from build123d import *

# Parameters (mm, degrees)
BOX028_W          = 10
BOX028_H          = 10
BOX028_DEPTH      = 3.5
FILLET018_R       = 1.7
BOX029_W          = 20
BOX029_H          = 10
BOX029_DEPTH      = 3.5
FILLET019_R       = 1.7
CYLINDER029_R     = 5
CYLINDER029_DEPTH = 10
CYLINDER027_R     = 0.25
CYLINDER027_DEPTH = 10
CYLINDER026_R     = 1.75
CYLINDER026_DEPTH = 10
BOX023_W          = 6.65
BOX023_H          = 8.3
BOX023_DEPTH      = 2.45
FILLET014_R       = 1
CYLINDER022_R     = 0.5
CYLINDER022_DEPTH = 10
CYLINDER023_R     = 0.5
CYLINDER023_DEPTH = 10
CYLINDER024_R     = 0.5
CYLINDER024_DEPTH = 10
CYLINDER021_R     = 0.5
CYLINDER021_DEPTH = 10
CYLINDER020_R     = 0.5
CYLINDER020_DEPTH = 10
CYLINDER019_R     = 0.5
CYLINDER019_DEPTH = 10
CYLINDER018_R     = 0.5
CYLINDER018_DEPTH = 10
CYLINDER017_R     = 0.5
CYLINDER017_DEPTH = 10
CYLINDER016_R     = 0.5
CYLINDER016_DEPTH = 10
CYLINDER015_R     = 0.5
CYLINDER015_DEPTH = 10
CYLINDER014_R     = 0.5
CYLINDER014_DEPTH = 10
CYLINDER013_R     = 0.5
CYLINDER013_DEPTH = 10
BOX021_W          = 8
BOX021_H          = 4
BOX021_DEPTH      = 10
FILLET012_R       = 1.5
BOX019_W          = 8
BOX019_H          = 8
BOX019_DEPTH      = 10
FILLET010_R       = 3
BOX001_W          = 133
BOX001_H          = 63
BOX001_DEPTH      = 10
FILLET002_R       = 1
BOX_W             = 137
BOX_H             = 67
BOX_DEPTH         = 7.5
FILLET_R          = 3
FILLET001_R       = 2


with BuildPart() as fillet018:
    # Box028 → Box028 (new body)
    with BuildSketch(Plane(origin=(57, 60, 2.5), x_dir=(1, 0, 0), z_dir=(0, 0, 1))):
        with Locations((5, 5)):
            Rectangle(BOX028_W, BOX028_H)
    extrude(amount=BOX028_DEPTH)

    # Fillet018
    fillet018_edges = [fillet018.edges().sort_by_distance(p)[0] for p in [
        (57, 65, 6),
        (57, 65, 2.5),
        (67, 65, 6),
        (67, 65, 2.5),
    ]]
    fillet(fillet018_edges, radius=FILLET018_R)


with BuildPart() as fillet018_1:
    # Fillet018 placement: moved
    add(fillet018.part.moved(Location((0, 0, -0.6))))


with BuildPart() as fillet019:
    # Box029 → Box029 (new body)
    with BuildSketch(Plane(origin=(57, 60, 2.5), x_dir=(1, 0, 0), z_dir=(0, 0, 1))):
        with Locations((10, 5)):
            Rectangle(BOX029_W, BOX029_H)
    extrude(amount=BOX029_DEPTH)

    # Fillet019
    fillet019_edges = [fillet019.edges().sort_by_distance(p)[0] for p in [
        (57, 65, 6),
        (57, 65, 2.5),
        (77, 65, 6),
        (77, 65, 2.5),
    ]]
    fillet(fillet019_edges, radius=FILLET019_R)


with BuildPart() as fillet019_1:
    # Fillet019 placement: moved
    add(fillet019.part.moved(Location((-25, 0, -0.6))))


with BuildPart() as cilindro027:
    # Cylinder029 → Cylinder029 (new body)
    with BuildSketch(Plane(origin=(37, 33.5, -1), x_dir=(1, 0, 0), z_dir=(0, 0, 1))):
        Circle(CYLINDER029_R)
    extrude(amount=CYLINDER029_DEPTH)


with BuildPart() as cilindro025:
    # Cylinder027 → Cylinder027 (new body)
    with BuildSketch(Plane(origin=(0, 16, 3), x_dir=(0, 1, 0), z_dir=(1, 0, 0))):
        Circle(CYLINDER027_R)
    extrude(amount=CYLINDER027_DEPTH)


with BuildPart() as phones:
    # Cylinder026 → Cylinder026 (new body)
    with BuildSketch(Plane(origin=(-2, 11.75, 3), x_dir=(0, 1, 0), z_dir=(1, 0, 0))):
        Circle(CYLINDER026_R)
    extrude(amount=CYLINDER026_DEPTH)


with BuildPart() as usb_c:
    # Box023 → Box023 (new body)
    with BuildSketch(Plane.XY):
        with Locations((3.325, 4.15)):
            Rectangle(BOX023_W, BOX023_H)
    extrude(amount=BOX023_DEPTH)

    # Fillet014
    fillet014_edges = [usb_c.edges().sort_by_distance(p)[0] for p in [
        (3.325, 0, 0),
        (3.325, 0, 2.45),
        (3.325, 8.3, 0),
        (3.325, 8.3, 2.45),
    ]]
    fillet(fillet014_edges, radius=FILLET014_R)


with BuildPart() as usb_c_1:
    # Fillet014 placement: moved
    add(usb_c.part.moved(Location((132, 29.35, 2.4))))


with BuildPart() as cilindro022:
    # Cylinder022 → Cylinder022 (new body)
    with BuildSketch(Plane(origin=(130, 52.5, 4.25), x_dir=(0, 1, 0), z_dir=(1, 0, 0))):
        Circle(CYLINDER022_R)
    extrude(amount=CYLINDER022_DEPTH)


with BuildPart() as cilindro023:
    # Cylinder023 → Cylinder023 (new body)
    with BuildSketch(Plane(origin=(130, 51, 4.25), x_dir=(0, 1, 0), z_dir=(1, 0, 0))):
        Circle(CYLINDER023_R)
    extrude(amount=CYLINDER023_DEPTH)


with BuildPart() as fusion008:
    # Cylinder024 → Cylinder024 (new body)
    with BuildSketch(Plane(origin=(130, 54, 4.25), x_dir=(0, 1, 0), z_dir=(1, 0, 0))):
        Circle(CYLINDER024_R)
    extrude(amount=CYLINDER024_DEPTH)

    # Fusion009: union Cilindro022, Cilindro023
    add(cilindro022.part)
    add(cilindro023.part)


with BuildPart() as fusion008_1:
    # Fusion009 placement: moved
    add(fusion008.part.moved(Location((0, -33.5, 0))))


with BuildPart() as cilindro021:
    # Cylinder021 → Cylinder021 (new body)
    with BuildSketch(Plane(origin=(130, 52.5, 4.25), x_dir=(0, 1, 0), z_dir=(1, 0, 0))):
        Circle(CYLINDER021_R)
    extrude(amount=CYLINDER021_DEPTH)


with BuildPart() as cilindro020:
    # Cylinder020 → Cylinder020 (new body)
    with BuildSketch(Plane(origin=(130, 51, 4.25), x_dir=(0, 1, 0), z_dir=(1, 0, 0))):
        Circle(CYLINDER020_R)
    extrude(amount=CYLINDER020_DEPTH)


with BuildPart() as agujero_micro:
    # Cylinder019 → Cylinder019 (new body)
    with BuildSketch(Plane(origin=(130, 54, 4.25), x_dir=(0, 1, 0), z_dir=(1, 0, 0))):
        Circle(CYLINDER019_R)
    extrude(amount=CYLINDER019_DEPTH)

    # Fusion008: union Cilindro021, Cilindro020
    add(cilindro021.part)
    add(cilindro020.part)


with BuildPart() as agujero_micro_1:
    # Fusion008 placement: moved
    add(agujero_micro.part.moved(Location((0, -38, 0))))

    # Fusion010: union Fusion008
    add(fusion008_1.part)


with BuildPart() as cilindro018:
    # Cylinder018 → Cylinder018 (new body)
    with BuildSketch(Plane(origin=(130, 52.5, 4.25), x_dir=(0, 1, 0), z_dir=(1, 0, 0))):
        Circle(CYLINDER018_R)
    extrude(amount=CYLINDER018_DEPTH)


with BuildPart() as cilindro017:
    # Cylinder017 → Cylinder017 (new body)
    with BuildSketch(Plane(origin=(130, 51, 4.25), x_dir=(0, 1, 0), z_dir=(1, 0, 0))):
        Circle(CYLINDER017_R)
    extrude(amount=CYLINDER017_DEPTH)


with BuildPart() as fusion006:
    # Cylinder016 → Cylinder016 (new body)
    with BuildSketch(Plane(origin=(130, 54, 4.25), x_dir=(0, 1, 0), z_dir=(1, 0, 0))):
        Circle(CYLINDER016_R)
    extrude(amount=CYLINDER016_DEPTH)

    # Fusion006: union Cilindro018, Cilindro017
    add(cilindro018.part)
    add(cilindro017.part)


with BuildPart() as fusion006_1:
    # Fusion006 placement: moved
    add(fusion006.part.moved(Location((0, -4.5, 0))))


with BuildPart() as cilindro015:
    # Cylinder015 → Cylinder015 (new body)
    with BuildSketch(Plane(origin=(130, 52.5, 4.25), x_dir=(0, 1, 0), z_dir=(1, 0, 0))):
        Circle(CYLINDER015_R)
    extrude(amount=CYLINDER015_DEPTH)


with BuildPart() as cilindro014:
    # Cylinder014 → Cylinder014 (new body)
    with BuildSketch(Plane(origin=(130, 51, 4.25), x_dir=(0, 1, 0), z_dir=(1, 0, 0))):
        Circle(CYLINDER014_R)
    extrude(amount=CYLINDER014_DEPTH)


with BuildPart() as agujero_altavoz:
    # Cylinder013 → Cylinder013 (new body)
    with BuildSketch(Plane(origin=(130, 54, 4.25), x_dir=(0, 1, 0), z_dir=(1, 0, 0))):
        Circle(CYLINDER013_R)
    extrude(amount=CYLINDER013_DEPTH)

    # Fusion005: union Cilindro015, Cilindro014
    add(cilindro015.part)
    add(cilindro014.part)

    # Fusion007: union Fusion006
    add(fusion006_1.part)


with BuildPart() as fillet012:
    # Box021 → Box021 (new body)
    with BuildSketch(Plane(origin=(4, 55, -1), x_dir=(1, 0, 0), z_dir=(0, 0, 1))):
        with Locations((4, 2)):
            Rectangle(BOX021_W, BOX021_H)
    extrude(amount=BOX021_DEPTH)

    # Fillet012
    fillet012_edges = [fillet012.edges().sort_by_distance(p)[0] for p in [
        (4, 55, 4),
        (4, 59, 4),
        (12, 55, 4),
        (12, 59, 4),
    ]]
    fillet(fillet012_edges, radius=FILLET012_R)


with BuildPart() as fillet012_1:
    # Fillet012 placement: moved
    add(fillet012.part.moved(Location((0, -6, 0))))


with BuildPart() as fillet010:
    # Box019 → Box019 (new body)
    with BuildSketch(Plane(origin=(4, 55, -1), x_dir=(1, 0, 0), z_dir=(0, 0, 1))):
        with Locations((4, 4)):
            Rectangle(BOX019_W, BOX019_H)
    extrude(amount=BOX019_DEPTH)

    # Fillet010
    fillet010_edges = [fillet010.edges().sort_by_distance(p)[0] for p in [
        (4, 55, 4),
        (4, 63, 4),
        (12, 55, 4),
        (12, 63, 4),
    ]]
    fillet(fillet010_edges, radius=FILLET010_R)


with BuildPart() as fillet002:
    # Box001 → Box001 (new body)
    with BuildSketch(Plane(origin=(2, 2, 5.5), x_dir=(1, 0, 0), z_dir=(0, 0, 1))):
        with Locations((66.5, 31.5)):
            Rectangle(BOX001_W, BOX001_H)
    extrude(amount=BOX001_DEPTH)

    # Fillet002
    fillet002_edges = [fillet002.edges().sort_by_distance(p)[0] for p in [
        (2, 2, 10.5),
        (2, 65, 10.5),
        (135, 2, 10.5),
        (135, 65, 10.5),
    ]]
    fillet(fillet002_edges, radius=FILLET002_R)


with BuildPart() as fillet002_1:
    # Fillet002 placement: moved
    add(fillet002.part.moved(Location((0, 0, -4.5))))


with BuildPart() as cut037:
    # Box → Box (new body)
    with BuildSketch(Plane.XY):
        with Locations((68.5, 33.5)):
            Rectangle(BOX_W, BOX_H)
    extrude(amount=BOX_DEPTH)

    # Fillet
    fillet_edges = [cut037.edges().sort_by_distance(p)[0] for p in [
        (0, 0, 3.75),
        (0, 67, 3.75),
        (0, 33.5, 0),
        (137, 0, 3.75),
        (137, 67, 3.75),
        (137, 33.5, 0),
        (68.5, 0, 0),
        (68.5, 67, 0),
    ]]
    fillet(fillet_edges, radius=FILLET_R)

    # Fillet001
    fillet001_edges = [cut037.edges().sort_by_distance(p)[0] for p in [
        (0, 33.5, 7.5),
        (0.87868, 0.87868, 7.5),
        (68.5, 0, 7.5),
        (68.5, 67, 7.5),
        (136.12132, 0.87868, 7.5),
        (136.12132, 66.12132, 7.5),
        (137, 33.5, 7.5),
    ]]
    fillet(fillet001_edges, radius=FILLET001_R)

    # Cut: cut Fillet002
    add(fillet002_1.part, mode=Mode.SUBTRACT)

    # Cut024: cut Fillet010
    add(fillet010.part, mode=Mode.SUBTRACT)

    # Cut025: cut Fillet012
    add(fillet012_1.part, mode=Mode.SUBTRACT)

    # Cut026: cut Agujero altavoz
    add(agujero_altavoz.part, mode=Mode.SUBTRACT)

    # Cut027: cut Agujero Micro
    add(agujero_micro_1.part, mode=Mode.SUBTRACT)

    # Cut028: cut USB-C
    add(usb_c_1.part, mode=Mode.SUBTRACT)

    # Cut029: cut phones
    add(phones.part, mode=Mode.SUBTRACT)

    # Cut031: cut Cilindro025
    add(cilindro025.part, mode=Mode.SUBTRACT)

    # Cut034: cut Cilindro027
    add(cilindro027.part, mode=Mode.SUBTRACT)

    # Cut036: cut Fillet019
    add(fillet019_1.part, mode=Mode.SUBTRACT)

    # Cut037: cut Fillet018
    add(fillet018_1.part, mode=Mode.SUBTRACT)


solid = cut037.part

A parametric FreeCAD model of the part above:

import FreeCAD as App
import Part
import Sketcher
from FreeCAD import Vector
Q = App.Units.Quantity


def edges_at(feature, points):
    """Names of the edges that pass closest to the given points."""
    edges = feature.Shape.Edges
    near = lambda p: min(range(len(edges)), key=lambda i: edges[i].distToShape(Part.Vertex(*p))[0])
    return sorted({f"Edge{near(p) + 1}" for p in points})


def add_polygon(sketch, points):
    """Adds a closed chain of lines whose ends are joined by coincident constraints."""
    first, n = sketch.GeometryCount, len(points)
    for a, b in zip(points, points[1:] + points[:1]):
        sketch.addGeometry(Part.LineSegment(App.Vector(*a, 0), App.Vector(*b, 0)), False)
    for i in range(n):
        sketch.addConstraint(Sketcher.Constraint("Coincident", first + i, 2, first + (i + 1) % n, 1))

doc = App.newDocument("Part")
body = doc.addObject("PartDesign::Body", "Body")

sketch1 = body.newObject("Sketcher::SketchObject", "Sketch")
sketch1.AttachmentSupport = (doc.getObject("XY_Plane"), [""])
sketch1.MapMode = "FlatFace"
sketch1.AttachmentOffset = App.Placement(Vector(0, 0, 2.5), App.Rotation())
add_polygon(sketch1, [(57, 70), (57, 60), (67, 60), (67, 70)])
sketch1.addConstraint([
    Sketcher.Constraint("Vertical", 0),
    Sketcher.Constraint("Horizontal", 1),
    Sketcher.Constraint("Vertical", 2),
    Sketcher.Constraint("Horizontal", 3),
    Sketcher.Constraint("Equal", 3, 0),
    Sketcher.Constraint("DistanceX", 1, 1, 1, 2, Q("10 mm")),
    Sketcher.Constraint("DistanceX", -1, 1, 0, 2, Q("57 mm")),
    Sketcher.Constraint("DistanceY", -1, 1, 0, 2, Q("60 mm")),
])
pad1 = body.newObject("PartDesign::Pad", "Pad")
pad1.Profile = sketch1
pad1.Length = 3.5
doc.recompute()

fillet = body.newObject("PartDesign::Fillet", "Fillet")
fillet.Base = (pad1, edges_at(pad1, [
    (57, 65, 6),
    (57, 65, 2.5),
    (67, 65, 6),
    (67, 65, 2.5),
]))
fillet.Radius = 1.7
body2 = doc.addObject("PartDesign::Body", "Body001")
doc.recompute()

body.Placement = App.Placement(Vector(0, 0, -0.6), App.Rotation(Vector(0, 0, 1), 0))
boolean = body2.newObject("PartDesign::Boolean", "Boolean")
boolean.Type = "Fuse"
boolean.addObjects([body])
body3 = doc.addObject("PartDesign::Body", "Body002")

sketch2 = body3.newObject("Sketcher::SketchObject", "Sketch001")
sketch2.AttachmentSupport = (doc.getObject("XY_Plane002"), [""])
sketch2.MapMode = "FlatFace"
sketch2.AttachmentOffset = App.Placement(Vector(0, 0, 2.5), App.Rotation())
add_polygon(sketch2, [(57, 70), (57, 60), (77, 60), (77, 70)])
sketch2.addConstraint([
    Sketcher.Constraint("Vertical", 0),
    Sketcher.Constraint("Horizontal", 1),
    Sketcher.Constraint("Vertical", 2),
    Sketcher.Constraint("Horizontal", 3),
    Sketcher.Constraint("DistanceX", 1, 1, 1, 2, Q("20 mm")),
    Sketcher.Constraint("DistanceY", 0, 2, 0, 1, Q("10 mm")),
    Sketcher.Constraint("DistanceX", -1, 1, 0, 2, Q("57 mm")),
    Sketcher.Constraint("DistanceY", -1, 1, 0, 2, Q("60 mm")),
])
pad2 = body3.newObject("PartDesign::Pad", "Pad001")
pad2.Profile = sketch2
pad2.Length = 3.5
doc.recompute()

fillet2 = body3.newObject("PartDesign::Fillet", "Fillet001")
fillet2.Base = (pad2, edges_at(pad2, [
    (57, 65, 6),
    (57, 65, 2.5),
    (77, 65, 6),
    (77, 65, 2.5),
]))
fillet2.Radius = 1.7
body4 = doc.addObject("PartDesign::Body", "Body003")
doc.recompute()

body3.Placement = App.Placement(Vector(-25, 0, -0.6), App.Rotation(Vector(0, 0, 1), 0))
boolean2 = body4.newObject("PartDesign::Boolean", "Boolean001")
boolean2.Type = "Fuse"
boolean2.addObjects([body3])
body5 = doc.addObject("PartDesign::Body", "Body004")

sketch3 = body5.newObject("Sketcher::SketchObject", "Sketch002")
sketch3.AttachmentSupport = (doc.getObject("XY_Plane004"), [""])
sketch3.MapMode = "FlatFace"
sketch3.AttachmentOffset = App.Placement(Vector(0, 0, -1), App.Rotation())
sketch3.addGeometry(Part.Circle(Vector(37, 33.5, 0), Vector(0, 0, 1), 5), False)
sketch3.addConstraint([
    Sketcher.Constraint("Diameter", 0, Q("10 mm")),
    Sketcher.Constraint("DistanceX", -1, 1, 0, 3, Q("37 mm")),
    Sketcher.Constraint("DistanceY", -1, 1, 0, 3, Q("33.5 mm")),
])
pad3 = body5.newObject("PartDesign::Pad", "Pad002")
pad3.Profile = sketch3
pad3.Length = 10
body6 = doc.addObject("PartDesign::Body", "Body005")

sketch4 = body6.newObject("Sketcher::SketchObject", "Sketch003")
sketch4.AttachmentSupport = (doc.getObject("YZ_Plane005"), [""])
sketch4.MapMode = "FlatFace"
sketch4.addGeometry(Part.Circle(Vector(16, 3, 0), Vector(0, 0, 1), 0.25), False)
sketch4.addConstraint([
    Sketcher.Constraint("Diameter", 0, Q("0.5 mm")),
    Sketcher.Constraint("DistanceX", -1, 1, 0, 3, Q("16 mm")),
    Sketcher.Constraint("DistanceY", -1, 1, 0, 3, Q("3 mm")),
])
pad4 = body6.newObject("PartDesign::Pad", "Pad003")
pad4.Profile = sketch4
pad4.Length = 10
body7 = doc.addObject("PartDesign::Body", "Body006")

sketch5 = body7.newObject("Sketcher::SketchObject", "Sketch004")
sketch5.AttachmentSupport = (doc.getObject("YZ_Plane006"), [""])
sketch5.MapMode = "FlatFace"
sketch5.AttachmentOffset = App.Placement(Vector(0, 0, -2), App.Rotation())
sketch5.addGeometry(Part.Circle(Vector(11.75, 3, 0), Vector(0, 0, 1), 1.75), False)
sketch5.addConstraint([
    Sketcher.Constraint("Diameter", 0, Q("3.5 mm")),
    Sketcher.Constraint("DistanceY", -1, 1, 0, 3, Q("3 mm")),
    Sketcher.Constraint("DistanceX", -1, 1, 0, 3, Q("11.75 mm")),
])
pad5 = body7.newObject("PartDesign::Pad", "Pad004")
pad5.Profile = sketch5
pad5.Length = 10
body8 = doc.addObject("PartDesign::Body", "Body007")

sketch6 = body8.newObject("Sketcher::SketchObject", "Sketch005")
sketch6.AttachmentSupport = (doc.getObject("XY_Plane007"), [""])
sketch6.MapMode = "FlatFace"
add_polygon(sketch6, [(0, 8.3), (0, 0), (6.65, 0), (6.65, 8.3)])
sketch6.addConstraint([
    Sketcher.Constraint("Vertical", 0),
    Sketcher.Constraint("Horizontal", 1),
    Sketcher.Constraint("Vertical", 2),
    Sketcher.Constraint("Horizontal", 3),
    Sketcher.Constraint("Coincident", 0, 2, -1, 1),
    Sketcher.Constraint("DistanceY", 0, 2, 0, 1, Q("8.3 mm")),
    Sketcher.Constraint("DistanceX", 1, 1, 1, 2, Q("6.65 mm")),
])
pad6 = body8.newObject("PartDesign::Pad", "Pad005")
pad6.Profile = sketch6
pad6.Length = 2.45
doc.recompute()

fillet3 = body8.newObject("PartDesign::Fillet", "Fillet002")
fillet3.Base = (pad6, edges_at(pad6, [
    (3.325, 0, 0),
    (3.325, 0, 2.45),
    (3.325, 8.3, 0),
    (3.325, 8.3, 2.45),
]))
fillet3.Radius = 1
body9 = doc.addObject("PartDesign::Body", "Body008")
doc.recompute()

body8.Placement = App.Placement(Vector(132, 29.35, 2.4), App.Rotation(Vector(0, 0, 1), 0))
boolean3 = body9.newObject("PartDesign::Boolean", "Boolean002")
boolean3.Type = "Fuse"
boolean3.addObjects([body8])
body10 = doc.addObject("PartDesign::Body", "Body009")

sketch7 = body10.newObject("Sketcher::SketchObject", "Sketch006")
sketch7.AttachmentSupport = (doc.getObject("YZ_Plane009"), [""])
sketch7.MapMode = "FlatFace"
sketch7.AttachmentOffset = App.Placement(Vector(0, 0, 130), App.Rotation())
sketch7.addGeometry(Part.Circle(Vector(52.5, 4.25, 0), Vector(0, 0, 1), 0.5), False)
sketch7.addConstraint([
    Sketcher.Constraint("Diameter", 0, Q("1 mm")),
    Sketcher.Constraint("DistanceX", -1, 1, 0, 3, Q("52.5 mm")),
    Sketcher.Constraint("DistanceY", -1, 1, 0, 3, Q("4.25 mm")),
])
pad7 = body10.newObject("PartDesign::Pad", "Pad006")
pad7.Profile = sketch7
pad7.Length = 10
body11 = doc.addObject("PartDesign::Body", "Body010")

sketch8 = body11.newObject("Sketcher::SketchObject", "Sketch007")
sketch8.AttachmentSupport = (doc.getObject("YZ_Plane010"), [""])
sketch8.MapMode = "FlatFace"
sketch8.AttachmentOffset = App.Placement(Vector(0, 0, 130), App.Rotation())
sketch8.addGeometry(Part.Circle(Vector(51, 4.25, 0), Vector(0, 0, 1), 0.5), False)
sketch8.addConstraint([
    Sketcher.Constraint("Diameter", 0, Q("1 mm")),
    Sketcher.Constraint("DistanceX", -1, 1, 0, 3, Q("51 mm")),
    Sketcher.Constraint("DistanceY", -1, 1, 0, 3, Q("4.25 mm")),
])
pad8 = body11.newObject("PartDesign::Pad", "Pad007")
pad8.Profile = sketch8
pad8.Length = 10
body12 = doc.addObject("PartDesign::Body", "Body011")
body12.AllowCompound = True

sketch9 = body12.newObject("Sketcher::SketchObject", "Sketch008")
sketch9.AttachmentSupport = (doc.getObject("YZ_Plane011"), [""])
sketch9.MapMode = "FlatFace"
sketch9.AttachmentOffset = App.Placement(Vector(0, 0, 130), App.Rotation())
sketch9.addGeometry(Part.Circle(Vector(54, 4.25, 0), Vector(0, 0, 1), 0.5), False)
sketch9.addConstraint([
    Sketcher.Constraint("Diameter", 0, Q("1 mm")),
    Sketcher.Constraint("DistanceX", -1, 1, 0, 3, Q("54 mm")),
    Sketcher.Constraint("DistanceY", -1, 1, 0, 3, Q("4.25 mm")),
])
pad9 = body12.newObject("PartDesign::Pad", "Pad008")
pad9.Profile = sketch9
pad9.Length = 10
doc.recompute()

boolean4 = body12.newObject("PartDesign::Boolean", "Boolean003")
boolean4.Type = "Fuse"
boolean4.addObjects([body10])
doc.recompute()

boolean5 = body12.newObject("PartDesign::Boolean", "Boolean004")
boolean5.Type = "Fuse"
boolean5.addObjects([body11])
body13 = doc.addObject("PartDesign::Body", "Body012")
body13.AllowCompound = True
doc.recompute()

body12.Placement = App.Placement(Vector(0, -33.5, 0), App.Rotation(Vector(0, 0, 1), 0))
boolean6 = body13.newObject("PartDesign::Boolean", "Boolean005")
boolean6.Type = "Fuse"
boolean6.addObjects([body12])
body14 = doc.addObject("PartDesign::Body", "Body013")

sketch10 = body14.newObject("Sketcher::SketchObject", "Sketch009")
sketch10.AttachmentSupport = (doc.getObject("YZ_Plane013"), [""])
sketch10.MapMode = "FlatFace"
sketch10.AttachmentOffset = App.Placement(Vector(0, 0, 130), App.Rotation())
sketch10.addGeometry(Part.Circle(Vector(52.5, 4.25, 0), Vector(0, 0, 1), 0.5), False)
sketch10.addConstraint([
    Sketcher.Constraint("Diameter", 0, Q("1 mm")),
    Sketcher.Constraint("DistanceX", -1, 1, 0, 3, Q("52.5 mm")),
    Sketcher.Constraint("DistanceY", -1, 1, 0, 3, Q("4.25 mm")),
])
pad10 = body14.newObject("PartDesign::Pad", "Pad009")
pad10.Profile = sketch10
pad10.Length = 10
body15 = doc.addObject("PartDesign::Body", "Body014")

sketch11 = body15.newObject("Sketcher::SketchObject", "Sketch010")
sketch11.AttachmentSupport = (doc.getObject("YZ_Plane014"), [""])
sketch11.MapMode = "FlatFace"
sketch11.AttachmentOffset = App.Placement(Vector(0, 0, 130), App.Rotation())
sketch11.addGeometry(Part.Circle(Vector(51, 4.25, 0), Vector(0, 0, 1), 0.5), False)
sketch11.addConstraint([
    Sketcher.Constraint("Diameter", 0, Q("1 mm")),
    Sketcher.Constraint("DistanceX", -1, 1, 0, 3, Q("51 mm")),
    Sketcher.Constraint("DistanceY", -1, 1, 0, 3, Q("4.25 mm")),
])
pad11 = body15.newObject("PartDesign::Pad", "Pad010")
pad11.Profile = sketch11
pad11.Length = 10
body16 = doc.addObject("PartDesign::Body", "Body015")
body16.AllowCompound = True

sketch12 = body16.newObject("Sketcher::SketchObject", "Sketch011")
sketch12.AttachmentSupport = (doc.getObject("YZ_Plane015"), [""])
sketch12.MapMode = "FlatFace"
sketch12.AttachmentOffset = App.Placement(Vector(0, 0, 130), App.Rotation())
sketch12.addGeometry(Part.Circle(Vector(54, 4.25, 0), Vector(0, 0, 1), 0.5), False)
sketch12.addConstraint([
    Sketcher.Constraint("Diameter", 0, Q("1 mm")),
    Sketcher.Constraint("DistanceX", -1, 1, 0, 3, Q("54 mm")),
    Sketcher.Constraint("DistanceY", -1, 1, 0, 3, Q("4.25 mm")),
])
pad12 = body16.newObject("PartDesign::Pad", "Pad011")
pad12.Profile = sketch12
pad12.Length = 10
doc.recompute()

boolean7 = body16.newObject("PartDesign::Boolean", "Boolean006")
boolean7.Type = "Fuse"
boolean7.addObjects([body14])
doc.recompute()

boolean8 = body16.newObject("PartDesign::Boolean", "Boolean007")
boolean8.Type = "Fuse"
boolean8.addObjects([body15])
body17 = doc.addObject("PartDesign::Body", "Body016")
body17.AllowCompound = True
doc.recompute()

body16.Placement = App.Placement(Vector(0, -38, 0), App.Rotation(Vector(0, 0, 1), 0))
boolean9 = body17.newObject("PartDesign::Boolean", "Boolean008")
boolean9.Type = "Fuse"
boolean9.addObjects([body16])
doc.recompute()

boolean10 = body17.newObject("PartDesign::Boolean", "Boolean009")
boolean10.Type = "Fuse"
boolean10.addObjects([body13])
body18 = doc.addObject("PartDesign::Body", "Body017")

sketch13 = body18.newObject("Sketcher::SketchObject", "Sketch012")
sketch13.AttachmentSupport = (doc.getObject("YZ_Plane017"), [""])
sketch13.MapMode = "FlatFace"
sketch13.AttachmentOffset = App.Placement(Vector(0, 0, 130), App.Rotation())
sketch13.addGeometry(Part.Circle(Vector(52.5, 4.25, 0), Vector(0, 0, 1), 0.5), False)
sketch13.addConstraint([
    Sketcher.Constraint("Diameter", 0, Q("1 mm")),
    Sketcher.Constraint("DistanceX", -1, 1, 0, 3, Q("52.5 mm")),
    Sketcher.Constraint("DistanceY", -1, 1, 0, 3, Q("4.25 mm")),
])
pad13 = body18.newObject("PartDesign::Pad", "Pad012")
pad13.Profile = sketch13
pad13.Length = 10
body19 = doc.addObject("PartDesign::Body", "Body018")

sketch14 = body19.newObject("Sketcher::SketchObject", "Sketch013")
sketch14.AttachmentSupport = (doc.getObject("YZ_Plane018"), [""])
sketch14.MapMode = "FlatFace"
sketch14.AttachmentOffset = App.Placement(Vector(0, 0, 130), App.Rotation())
sketch14.addGeometry(Part.Circle(Vector(51, 4.25, 0), Vector(0, 0, 1), 0.5), False)
sketch14.addConstraint([
    Sketcher.Constraint("Diameter", 0, Q("1 mm")),
    Sketcher.Constraint("DistanceX", -1, 1, 0, 3, Q("51 mm")),
    Sketcher.Constraint("DistanceY", -1, 1, 0, 3, Q("4.25 mm")),
])
pad14 = body19.newObject("PartDesign::Pad", "Pad013")
pad14.Profile = sketch14
pad14.Length = 10
body20 = doc.addObject("PartDesign::Body", "Body019")
body20.AllowCompound = True

sketch15 = body20.newObject("Sketcher::SketchObject", "Sketch014")
sketch15.AttachmentSupport = (doc.getObject("YZ_Plane019"), [""])
sketch15.MapMode = "FlatFace"
sketch15.AttachmentOffset = App.Placement(Vector(0, 0, 130), App.Rotation())
sketch15.addGeometry(Part.Circle(Vector(54, 4.25, 0), Vector(0, 0, 1), 0.5), False)
sketch15.addConstraint([
    Sketcher.Constraint("Diameter", 0, Q("1 mm")),
    Sketcher.Constraint("DistanceX", -1, 1, 0, 3, Q("54 mm")),
    Sketcher.Constraint("DistanceY", -1, 1, 0, 3, Q("4.25 mm")),
])
pad15 = body20.newObject("PartDesign::Pad", "Pad014")
pad15.Profile = sketch15
pad15.Length = 10
doc.recompute()

boolean11 = body20.newObject("PartDesign::Boolean", "Boolean010")
boolean11.Type = "Fuse"
boolean11.addObjects([body18])
doc.recompute()

boolean12 = body20.newObject("PartDesign::Boolean", "Boolean011")
boolean12.Type = "Fuse"
boolean12.addObjects([body19])
body21 = doc.addObject("PartDesign::Body", "Body020")
body21.AllowCompound = True
doc.recompute()

body20.Placement = App.Placement(Vector(0, -4.5, 0), App.Rotation(Vector(0, 0, 1), 0))
boolean13 = body21.newObject("PartDesign::Boolean", "Boolean012")
boolean13.Type = "Fuse"
boolean13.addObjects([body20])
body22 = doc.addObject("PartDesign::Body", "Body021")

sketch16 = body22.newObject("Sketcher::SketchObject", "Sketch015")
sketch16.AttachmentSupport = (doc.getObject("YZ_Plane021"), [""])
sketch16.MapMode = "FlatFace"
sketch16.AttachmentOffset = App.Placement(Vector(0, 0, 130), App.Rotation())
sketch16.addGeometry(Part.Circle(Vector(52.5, 4.25, 0), Vector(0, 0, 1), 0.5), False)
sketch16.addConstraint([
    Sketcher.Constraint("Diameter", 0, Q("1 mm")),
    Sketcher.Constraint("DistanceX", -1, 1, 0, 3, Q("52.5 mm")),
    Sketcher.Constraint("DistanceY", -1, 1, 0, 3, Q("4.25 mm")),
])
pad16 = body22.newObject("PartDesign::Pad", "Pad015")
pad16.Profile = sketch16
pad16.Length = 10
body23 = doc.addObject("PartDesign::Body", "Body022")

sketch17 = body23.newObject("Sketcher::SketchObject", "Sketch016")
sketch17.AttachmentSupport = (doc.getObject("YZ_Plane022"), [""])
sketch17.MapMode = "FlatFace"
sketch17.AttachmentOffset = App.Placement(Vector(0, 0, 130), App.Rotation())
sketch17.addGeometry(Part.Circle(Vector(51, 4.25, 0), Vector(0, 0, 1), 0.5), False)
sketch17.addConstraint([
    Sketcher.Constraint("Diameter", 0, Q("1 mm")),
    Sketcher.Constraint("DistanceX", -1, 1, 0, 3, Q("51 mm")),
    Sketcher.Constraint("DistanceY", -1, 1, 0, 3, Q("4.25 mm")),
])
pad17 = body23.newObject("PartDesign::Pad", "Pad016")
pad17.Profile = sketch17
pad17.Length = 10
body24 = doc.addObject("PartDesign::Body", "Body023")
body24.AllowCompound = True

sketch18 = body24.newObject("Sketcher::SketchObject", "Sketch017")
sketch18.AttachmentSupport = (doc.getObject("YZ_Plane023"), [""])
sketch18.MapMode = "FlatFace"
sketch18.AttachmentOffset = App.Placement(Vector(0, 0, 130), App.Rotation())
sketch18.addGeometry(Part.Circle(Vector(54, 4.25, 0), Vector(0, 0, 1), 0.5), False)
sketch18.addConstraint([
    Sketcher.Constraint("Diameter", 0, Q("1 mm")),
    Sketcher.Constraint("DistanceX", -1, 1, 0, 3, Q("54 mm")),
    Sketcher.Constraint("DistanceY", -1, 1, 0, 3, Q("4.25 mm")),
])
pad18 = body24.newObject("PartDesign::Pad", "Pad017")
pad18.Profile = sketch18
pad18.Length = 10
doc.recompute()

boolean14 = body24.newObject("PartDesign::Boolean", "Boolean013")
boolean14.Type = "Fuse"
boolean14.addObjects([body22])
doc.recompute()

boolean15 = body24.newObject("PartDesign::Boolean", "Boolean014")
boolean15.Type = "Fuse"
boolean15.addObjects([body23])
doc.recompute()

boolean16 = body24.newObject("PartDesign::Boolean", "Boolean015")
boolean16.Type = "Fuse"
boolean16.addObjects([body21])
body25 = doc.addObject("PartDesign::Body", "Body024")

sketch19 = body25.newObject("Sketcher::SketchObject", "Sketch018")
sketch19.AttachmentSupport = (doc.getObject("XY_Plane024"), [""])
sketch19.MapMode = "FlatFace"
sketch19.AttachmentOffset = App.Placement(Vector(0, 0, -1), App.Rotation())
add_polygon(sketch19, [(4, 59), (4, 55), (12, 55), (12, 59)])
sketch19.addConstraint([
    Sketcher.Constraint("Vertical", 0),
    Sketcher.Constraint("Horizontal", 1),
    Sketcher.Constraint("Vertical", 2),
    Sketcher.Constraint("Horizontal", 3),
    Sketcher.Constraint("DistanceX", 1, 1, 1, 2, Q("8 mm")),
    Sketcher.Constraint("DistanceY", 0, 2, 0, 1, Q("4 mm")),
    Sketcher.Constraint("DistanceX", -1, 1, 0, 2, Q("4 mm")),
    Sketcher.Constraint("DistanceY", -1, 1, 0, 2, Q("55 mm")),
])
pad19 = body25.newObject("PartDesign::Pad", "Pad018")
pad19.Profile = sketch19
pad19.Length = 10
doc.recompute()

fillet4 = body25.newObject("PartDesign::Fillet", "Fillet003")
fillet4.Base = (pad19, edges_at(pad19, [
    (4, 55, 4),
    (4, 59, 4),
    (12, 55, 4),
    (12, 59, 4),
]))
fillet4.Radius = 1.5
body26 = doc.addObject("PartDesign::Body", "Body025")
doc.recompute()

body25.Placement = App.Placement(Vector(0, -6, 0), App.Rotation(Vector(0, 0, 1), 0))
boolean17 = body26.newObject("PartDesign::Boolean", "Boolean016")
boolean17.Type = "Fuse"
boolean17.addObjects([body25])
body27 = doc.addObject("PartDesign::Body", "Body026")

sketch20 = body27.newObject("Sketcher::SketchObject", "Sketch019")
sketch20.AttachmentSupport = (doc.getObject("XY_Plane026"), [""])
sketch20.MapMode = "FlatFace"
sketch20.AttachmentOffset = App.Placement(Vector(0, 0, -1), App.Rotation())
add_polygon(sketch20, [(4, 63), (4, 55), (12, 55), (12, 63)])
sketch20.addConstraint([
    Sketcher.Constraint("Vertical", 0),
    Sketcher.Constraint("Horizontal", 1),
    Sketcher.Constraint("Vertical", 2),
    Sketcher.Constraint("Horizontal", 3),
    Sketcher.Constraint("Equal", 3, 0),
    Sketcher.Constraint("DistanceX", 1, 1, 1, 2, Q("8 mm")),
    Sketcher.Constraint("DistanceX", -1, 1, 0, 2, Q("4 mm")),
    Sketcher.Constraint("DistanceY", -1, 1, 0, 2, Q("55 mm")),
])
pad20 = body27.newObject("PartDesign::Pad", "Pad019")
pad20.Profile = sketch20
pad20.Length = 10
doc.recompute()

fillet5 = body27.newObject("PartDesign::Fillet", "Fillet004")
fillet5.Base = (pad20, edges_at(pad20, [
    (4, 55, 4),
    (4, 63, 4),
    (12, 55, 4),
    (12, 63, 4),
]))
fillet5.Radius = 3
body28 = doc.addObject("PartDesign::Body", "Body027")

sketch21 = body28.newObject("Sketcher::SketchObject", "Sketch020")
sketch21.AttachmentSupport = (doc.getObject("XY_Plane027"), [""])
sketch21.MapMode = "FlatFace"
sketch21.AttachmentOffset = App.Placement(Vector(0, 0, 5.5), App.Rotation())
add_polygon(sketch21, [(2, 65), (2, 2), (135, 2), (135, 65)])
sketch21.addConstraint([
    Sketcher.Constraint("Vertical", 0),
    Sketcher.Constraint("Horizontal", 1),
    Sketcher.Constraint("Vertical", 2),
    Sketcher.Constraint("Horizontal", 3),
    Sketcher.Constraint("DistanceX", 1, 1, 1, 2, Q("133 mm")),
    Sketcher.Constraint("DistanceY", 0, 2, 0, 1, Q("63 mm")),
    Sketcher.Constraint("DistanceX", -1, 1, 0, 2, Q("2 mm")),
    Sketcher.Constraint("DistanceY", -1, 1, 0, 2, Q("2 mm")),
])
pad21 = body28.newObject("PartDesign::Pad", "Pad020")
pad21.Profile = sketch21
pad21.Length = 10
doc.recompute()

fillet6 = body28.newObject("PartDesign::Fillet", "Fillet005")
fillet6.Base = (pad21, edges_at(pad21, [
    (2, 2, 10.5),
    (2, 65, 10.5),
    (135, 2, 10.5),
    (135, 65, 10.5),
]))
fillet6.Radius = 1
body29 = doc.addObject("PartDesign::Body", "Body028")
doc.recompute()

body28.Placement = App.Placement(Vector(0, 0, -4.5), App.Rotation(Vector(0, 0, 1), 0))
boolean18 = body29.newObject("PartDesign::Boolean", "Boolean017")
boolean18.Type = "Fuse"
boolean18.addObjects([body28])
body30 = doc.addObject("PartDesign::Body", "Body029")

sketch22 = body30.newObject("Sketcher::SketchObject", "Sketch021")
sketch22.AttachmentSupport = (doc.getObject("XY_Plane029"), [""])
sketch22.MapMode = "FlatFace"
add_polygon(sketch22, [(0, 67), (0, 0), (137, 0), (137, 67)])
sketch22.addConstraint([
    Sketcher.Constraint("Vertical", 0),
    Sketcher.Constraint("Horizontal", 1),
    Sketcher.Constraint("Vertical", 2),
    Sketcher.Constraint("Horizontal", 3),
    Sketcher.Constraint("Coincident", 0, 2, -1, 1),
    Sketcher.Constraint("DistanceX", 1, 1, 1, 2, Q("137 mm")),
    Sketcher.Constraint("DistanceY", 0, 2, 0, 1, Q("67 mm")),
])
pad22 = body30.newObject("PartDesign::Pad", "Pad021")
pad22.Profile = sketch22
pad22.Length = 7.5
doc.recompute()

fillet7 = body30.newObject("PartDesign::Fillet", "Fillet006")
fillet7.Base = (pad22, edges_at(pad22, [
    (0, 0, 3.75),
    (0, 67, 3.75),
    (0, 33.5, 0),
    (137, 0, 3.75),
    (137, 67, 3.75),
    (137, 33.5, 0),
    (68.5, 0, 0),
    (68.5, 67, 0),
]))
fillet7.Radius = 3
doc.recompute()

fillet8 = body30.newObject("PartDesign::Fillet", "Fillet007")
fillet8.Base = (fillet7, edges_at(fillet7, [
    (0, 33.5, 7.5),
    (0.879, 0.879, 7.5),
    (68.5, 0, 7.5),
    (68.5, 67, 7.5),
    (136.121, 0.879, 7.5),
    (136.121, 66.121, 7.5),
    (137, 33.5, 7.5),
]))
fillet8.Radius = 2
doc.recompute()

boolean19 = body30.newObject("PartDesign::Boolean", "Boolean018")
boolean19.Type = "Cut"
boolean19.addObjects([body29])
doc.recompute()

boolean20 = body30.newObject("PartDesign::Boolean", "Boolean019")
boolean20.Type = "Cut"
boolean20.addObjects([body27])
doc.recompute()

boolean21 = body30.newObject("PartDesign::Boolean", "Boolean020")
boolean21.Type = "Cut"
boolean21.addObjects([body26])
doc.recompute()

boolean22 = body30.newObject("PartDesign::Boolean", "Boolean021")
boolean22.Type = "Cut"
boolean22.addObjects([body24])
doc.recompute()

boolean23 = body30.newObject("PartDesign::Boolean", "Boolean022")
boolean23.Type = "Cut"
boolean23.addObjects([body17])
doc.recompute()

boolean24 = body30.newObject("PartDesign::Boolean", "Boolean023")
boolean24.Type = "Cut"
boolean24.addObjects([body9])
doc.recompute()

boolean25 = body30.newObject("PartDesign::Boolean", "Boolean024")
boolean25.Type = "Cut"
boolean25.addObjects([body7])
doc.recompute()

boolean26 = body30.newObject("PartDesign::Boolean", "Boolean025")
boolean26.Type = "Cut"
boolean26.addObjects([body6])
doc.recompute()

boolean27 = body30.newObject("PartDesign::Boolean", "Boolean026")
boolean27.Type = "Cut"
boolean27.addObjects([body5])
doc.recompute()

boolean28 = body30.newObject("PartDesign::Boolean", "Boolean027")
boolean28.Type = "Cut"
boolean28.addObjects([body4])
doc.recompute()

boolean29 = body30.newObject("PartDesign::Boolean", "Boolean028")
boolean29.Type = "Cut"
boolean29.addObjects([body2])

doc.recompute()
